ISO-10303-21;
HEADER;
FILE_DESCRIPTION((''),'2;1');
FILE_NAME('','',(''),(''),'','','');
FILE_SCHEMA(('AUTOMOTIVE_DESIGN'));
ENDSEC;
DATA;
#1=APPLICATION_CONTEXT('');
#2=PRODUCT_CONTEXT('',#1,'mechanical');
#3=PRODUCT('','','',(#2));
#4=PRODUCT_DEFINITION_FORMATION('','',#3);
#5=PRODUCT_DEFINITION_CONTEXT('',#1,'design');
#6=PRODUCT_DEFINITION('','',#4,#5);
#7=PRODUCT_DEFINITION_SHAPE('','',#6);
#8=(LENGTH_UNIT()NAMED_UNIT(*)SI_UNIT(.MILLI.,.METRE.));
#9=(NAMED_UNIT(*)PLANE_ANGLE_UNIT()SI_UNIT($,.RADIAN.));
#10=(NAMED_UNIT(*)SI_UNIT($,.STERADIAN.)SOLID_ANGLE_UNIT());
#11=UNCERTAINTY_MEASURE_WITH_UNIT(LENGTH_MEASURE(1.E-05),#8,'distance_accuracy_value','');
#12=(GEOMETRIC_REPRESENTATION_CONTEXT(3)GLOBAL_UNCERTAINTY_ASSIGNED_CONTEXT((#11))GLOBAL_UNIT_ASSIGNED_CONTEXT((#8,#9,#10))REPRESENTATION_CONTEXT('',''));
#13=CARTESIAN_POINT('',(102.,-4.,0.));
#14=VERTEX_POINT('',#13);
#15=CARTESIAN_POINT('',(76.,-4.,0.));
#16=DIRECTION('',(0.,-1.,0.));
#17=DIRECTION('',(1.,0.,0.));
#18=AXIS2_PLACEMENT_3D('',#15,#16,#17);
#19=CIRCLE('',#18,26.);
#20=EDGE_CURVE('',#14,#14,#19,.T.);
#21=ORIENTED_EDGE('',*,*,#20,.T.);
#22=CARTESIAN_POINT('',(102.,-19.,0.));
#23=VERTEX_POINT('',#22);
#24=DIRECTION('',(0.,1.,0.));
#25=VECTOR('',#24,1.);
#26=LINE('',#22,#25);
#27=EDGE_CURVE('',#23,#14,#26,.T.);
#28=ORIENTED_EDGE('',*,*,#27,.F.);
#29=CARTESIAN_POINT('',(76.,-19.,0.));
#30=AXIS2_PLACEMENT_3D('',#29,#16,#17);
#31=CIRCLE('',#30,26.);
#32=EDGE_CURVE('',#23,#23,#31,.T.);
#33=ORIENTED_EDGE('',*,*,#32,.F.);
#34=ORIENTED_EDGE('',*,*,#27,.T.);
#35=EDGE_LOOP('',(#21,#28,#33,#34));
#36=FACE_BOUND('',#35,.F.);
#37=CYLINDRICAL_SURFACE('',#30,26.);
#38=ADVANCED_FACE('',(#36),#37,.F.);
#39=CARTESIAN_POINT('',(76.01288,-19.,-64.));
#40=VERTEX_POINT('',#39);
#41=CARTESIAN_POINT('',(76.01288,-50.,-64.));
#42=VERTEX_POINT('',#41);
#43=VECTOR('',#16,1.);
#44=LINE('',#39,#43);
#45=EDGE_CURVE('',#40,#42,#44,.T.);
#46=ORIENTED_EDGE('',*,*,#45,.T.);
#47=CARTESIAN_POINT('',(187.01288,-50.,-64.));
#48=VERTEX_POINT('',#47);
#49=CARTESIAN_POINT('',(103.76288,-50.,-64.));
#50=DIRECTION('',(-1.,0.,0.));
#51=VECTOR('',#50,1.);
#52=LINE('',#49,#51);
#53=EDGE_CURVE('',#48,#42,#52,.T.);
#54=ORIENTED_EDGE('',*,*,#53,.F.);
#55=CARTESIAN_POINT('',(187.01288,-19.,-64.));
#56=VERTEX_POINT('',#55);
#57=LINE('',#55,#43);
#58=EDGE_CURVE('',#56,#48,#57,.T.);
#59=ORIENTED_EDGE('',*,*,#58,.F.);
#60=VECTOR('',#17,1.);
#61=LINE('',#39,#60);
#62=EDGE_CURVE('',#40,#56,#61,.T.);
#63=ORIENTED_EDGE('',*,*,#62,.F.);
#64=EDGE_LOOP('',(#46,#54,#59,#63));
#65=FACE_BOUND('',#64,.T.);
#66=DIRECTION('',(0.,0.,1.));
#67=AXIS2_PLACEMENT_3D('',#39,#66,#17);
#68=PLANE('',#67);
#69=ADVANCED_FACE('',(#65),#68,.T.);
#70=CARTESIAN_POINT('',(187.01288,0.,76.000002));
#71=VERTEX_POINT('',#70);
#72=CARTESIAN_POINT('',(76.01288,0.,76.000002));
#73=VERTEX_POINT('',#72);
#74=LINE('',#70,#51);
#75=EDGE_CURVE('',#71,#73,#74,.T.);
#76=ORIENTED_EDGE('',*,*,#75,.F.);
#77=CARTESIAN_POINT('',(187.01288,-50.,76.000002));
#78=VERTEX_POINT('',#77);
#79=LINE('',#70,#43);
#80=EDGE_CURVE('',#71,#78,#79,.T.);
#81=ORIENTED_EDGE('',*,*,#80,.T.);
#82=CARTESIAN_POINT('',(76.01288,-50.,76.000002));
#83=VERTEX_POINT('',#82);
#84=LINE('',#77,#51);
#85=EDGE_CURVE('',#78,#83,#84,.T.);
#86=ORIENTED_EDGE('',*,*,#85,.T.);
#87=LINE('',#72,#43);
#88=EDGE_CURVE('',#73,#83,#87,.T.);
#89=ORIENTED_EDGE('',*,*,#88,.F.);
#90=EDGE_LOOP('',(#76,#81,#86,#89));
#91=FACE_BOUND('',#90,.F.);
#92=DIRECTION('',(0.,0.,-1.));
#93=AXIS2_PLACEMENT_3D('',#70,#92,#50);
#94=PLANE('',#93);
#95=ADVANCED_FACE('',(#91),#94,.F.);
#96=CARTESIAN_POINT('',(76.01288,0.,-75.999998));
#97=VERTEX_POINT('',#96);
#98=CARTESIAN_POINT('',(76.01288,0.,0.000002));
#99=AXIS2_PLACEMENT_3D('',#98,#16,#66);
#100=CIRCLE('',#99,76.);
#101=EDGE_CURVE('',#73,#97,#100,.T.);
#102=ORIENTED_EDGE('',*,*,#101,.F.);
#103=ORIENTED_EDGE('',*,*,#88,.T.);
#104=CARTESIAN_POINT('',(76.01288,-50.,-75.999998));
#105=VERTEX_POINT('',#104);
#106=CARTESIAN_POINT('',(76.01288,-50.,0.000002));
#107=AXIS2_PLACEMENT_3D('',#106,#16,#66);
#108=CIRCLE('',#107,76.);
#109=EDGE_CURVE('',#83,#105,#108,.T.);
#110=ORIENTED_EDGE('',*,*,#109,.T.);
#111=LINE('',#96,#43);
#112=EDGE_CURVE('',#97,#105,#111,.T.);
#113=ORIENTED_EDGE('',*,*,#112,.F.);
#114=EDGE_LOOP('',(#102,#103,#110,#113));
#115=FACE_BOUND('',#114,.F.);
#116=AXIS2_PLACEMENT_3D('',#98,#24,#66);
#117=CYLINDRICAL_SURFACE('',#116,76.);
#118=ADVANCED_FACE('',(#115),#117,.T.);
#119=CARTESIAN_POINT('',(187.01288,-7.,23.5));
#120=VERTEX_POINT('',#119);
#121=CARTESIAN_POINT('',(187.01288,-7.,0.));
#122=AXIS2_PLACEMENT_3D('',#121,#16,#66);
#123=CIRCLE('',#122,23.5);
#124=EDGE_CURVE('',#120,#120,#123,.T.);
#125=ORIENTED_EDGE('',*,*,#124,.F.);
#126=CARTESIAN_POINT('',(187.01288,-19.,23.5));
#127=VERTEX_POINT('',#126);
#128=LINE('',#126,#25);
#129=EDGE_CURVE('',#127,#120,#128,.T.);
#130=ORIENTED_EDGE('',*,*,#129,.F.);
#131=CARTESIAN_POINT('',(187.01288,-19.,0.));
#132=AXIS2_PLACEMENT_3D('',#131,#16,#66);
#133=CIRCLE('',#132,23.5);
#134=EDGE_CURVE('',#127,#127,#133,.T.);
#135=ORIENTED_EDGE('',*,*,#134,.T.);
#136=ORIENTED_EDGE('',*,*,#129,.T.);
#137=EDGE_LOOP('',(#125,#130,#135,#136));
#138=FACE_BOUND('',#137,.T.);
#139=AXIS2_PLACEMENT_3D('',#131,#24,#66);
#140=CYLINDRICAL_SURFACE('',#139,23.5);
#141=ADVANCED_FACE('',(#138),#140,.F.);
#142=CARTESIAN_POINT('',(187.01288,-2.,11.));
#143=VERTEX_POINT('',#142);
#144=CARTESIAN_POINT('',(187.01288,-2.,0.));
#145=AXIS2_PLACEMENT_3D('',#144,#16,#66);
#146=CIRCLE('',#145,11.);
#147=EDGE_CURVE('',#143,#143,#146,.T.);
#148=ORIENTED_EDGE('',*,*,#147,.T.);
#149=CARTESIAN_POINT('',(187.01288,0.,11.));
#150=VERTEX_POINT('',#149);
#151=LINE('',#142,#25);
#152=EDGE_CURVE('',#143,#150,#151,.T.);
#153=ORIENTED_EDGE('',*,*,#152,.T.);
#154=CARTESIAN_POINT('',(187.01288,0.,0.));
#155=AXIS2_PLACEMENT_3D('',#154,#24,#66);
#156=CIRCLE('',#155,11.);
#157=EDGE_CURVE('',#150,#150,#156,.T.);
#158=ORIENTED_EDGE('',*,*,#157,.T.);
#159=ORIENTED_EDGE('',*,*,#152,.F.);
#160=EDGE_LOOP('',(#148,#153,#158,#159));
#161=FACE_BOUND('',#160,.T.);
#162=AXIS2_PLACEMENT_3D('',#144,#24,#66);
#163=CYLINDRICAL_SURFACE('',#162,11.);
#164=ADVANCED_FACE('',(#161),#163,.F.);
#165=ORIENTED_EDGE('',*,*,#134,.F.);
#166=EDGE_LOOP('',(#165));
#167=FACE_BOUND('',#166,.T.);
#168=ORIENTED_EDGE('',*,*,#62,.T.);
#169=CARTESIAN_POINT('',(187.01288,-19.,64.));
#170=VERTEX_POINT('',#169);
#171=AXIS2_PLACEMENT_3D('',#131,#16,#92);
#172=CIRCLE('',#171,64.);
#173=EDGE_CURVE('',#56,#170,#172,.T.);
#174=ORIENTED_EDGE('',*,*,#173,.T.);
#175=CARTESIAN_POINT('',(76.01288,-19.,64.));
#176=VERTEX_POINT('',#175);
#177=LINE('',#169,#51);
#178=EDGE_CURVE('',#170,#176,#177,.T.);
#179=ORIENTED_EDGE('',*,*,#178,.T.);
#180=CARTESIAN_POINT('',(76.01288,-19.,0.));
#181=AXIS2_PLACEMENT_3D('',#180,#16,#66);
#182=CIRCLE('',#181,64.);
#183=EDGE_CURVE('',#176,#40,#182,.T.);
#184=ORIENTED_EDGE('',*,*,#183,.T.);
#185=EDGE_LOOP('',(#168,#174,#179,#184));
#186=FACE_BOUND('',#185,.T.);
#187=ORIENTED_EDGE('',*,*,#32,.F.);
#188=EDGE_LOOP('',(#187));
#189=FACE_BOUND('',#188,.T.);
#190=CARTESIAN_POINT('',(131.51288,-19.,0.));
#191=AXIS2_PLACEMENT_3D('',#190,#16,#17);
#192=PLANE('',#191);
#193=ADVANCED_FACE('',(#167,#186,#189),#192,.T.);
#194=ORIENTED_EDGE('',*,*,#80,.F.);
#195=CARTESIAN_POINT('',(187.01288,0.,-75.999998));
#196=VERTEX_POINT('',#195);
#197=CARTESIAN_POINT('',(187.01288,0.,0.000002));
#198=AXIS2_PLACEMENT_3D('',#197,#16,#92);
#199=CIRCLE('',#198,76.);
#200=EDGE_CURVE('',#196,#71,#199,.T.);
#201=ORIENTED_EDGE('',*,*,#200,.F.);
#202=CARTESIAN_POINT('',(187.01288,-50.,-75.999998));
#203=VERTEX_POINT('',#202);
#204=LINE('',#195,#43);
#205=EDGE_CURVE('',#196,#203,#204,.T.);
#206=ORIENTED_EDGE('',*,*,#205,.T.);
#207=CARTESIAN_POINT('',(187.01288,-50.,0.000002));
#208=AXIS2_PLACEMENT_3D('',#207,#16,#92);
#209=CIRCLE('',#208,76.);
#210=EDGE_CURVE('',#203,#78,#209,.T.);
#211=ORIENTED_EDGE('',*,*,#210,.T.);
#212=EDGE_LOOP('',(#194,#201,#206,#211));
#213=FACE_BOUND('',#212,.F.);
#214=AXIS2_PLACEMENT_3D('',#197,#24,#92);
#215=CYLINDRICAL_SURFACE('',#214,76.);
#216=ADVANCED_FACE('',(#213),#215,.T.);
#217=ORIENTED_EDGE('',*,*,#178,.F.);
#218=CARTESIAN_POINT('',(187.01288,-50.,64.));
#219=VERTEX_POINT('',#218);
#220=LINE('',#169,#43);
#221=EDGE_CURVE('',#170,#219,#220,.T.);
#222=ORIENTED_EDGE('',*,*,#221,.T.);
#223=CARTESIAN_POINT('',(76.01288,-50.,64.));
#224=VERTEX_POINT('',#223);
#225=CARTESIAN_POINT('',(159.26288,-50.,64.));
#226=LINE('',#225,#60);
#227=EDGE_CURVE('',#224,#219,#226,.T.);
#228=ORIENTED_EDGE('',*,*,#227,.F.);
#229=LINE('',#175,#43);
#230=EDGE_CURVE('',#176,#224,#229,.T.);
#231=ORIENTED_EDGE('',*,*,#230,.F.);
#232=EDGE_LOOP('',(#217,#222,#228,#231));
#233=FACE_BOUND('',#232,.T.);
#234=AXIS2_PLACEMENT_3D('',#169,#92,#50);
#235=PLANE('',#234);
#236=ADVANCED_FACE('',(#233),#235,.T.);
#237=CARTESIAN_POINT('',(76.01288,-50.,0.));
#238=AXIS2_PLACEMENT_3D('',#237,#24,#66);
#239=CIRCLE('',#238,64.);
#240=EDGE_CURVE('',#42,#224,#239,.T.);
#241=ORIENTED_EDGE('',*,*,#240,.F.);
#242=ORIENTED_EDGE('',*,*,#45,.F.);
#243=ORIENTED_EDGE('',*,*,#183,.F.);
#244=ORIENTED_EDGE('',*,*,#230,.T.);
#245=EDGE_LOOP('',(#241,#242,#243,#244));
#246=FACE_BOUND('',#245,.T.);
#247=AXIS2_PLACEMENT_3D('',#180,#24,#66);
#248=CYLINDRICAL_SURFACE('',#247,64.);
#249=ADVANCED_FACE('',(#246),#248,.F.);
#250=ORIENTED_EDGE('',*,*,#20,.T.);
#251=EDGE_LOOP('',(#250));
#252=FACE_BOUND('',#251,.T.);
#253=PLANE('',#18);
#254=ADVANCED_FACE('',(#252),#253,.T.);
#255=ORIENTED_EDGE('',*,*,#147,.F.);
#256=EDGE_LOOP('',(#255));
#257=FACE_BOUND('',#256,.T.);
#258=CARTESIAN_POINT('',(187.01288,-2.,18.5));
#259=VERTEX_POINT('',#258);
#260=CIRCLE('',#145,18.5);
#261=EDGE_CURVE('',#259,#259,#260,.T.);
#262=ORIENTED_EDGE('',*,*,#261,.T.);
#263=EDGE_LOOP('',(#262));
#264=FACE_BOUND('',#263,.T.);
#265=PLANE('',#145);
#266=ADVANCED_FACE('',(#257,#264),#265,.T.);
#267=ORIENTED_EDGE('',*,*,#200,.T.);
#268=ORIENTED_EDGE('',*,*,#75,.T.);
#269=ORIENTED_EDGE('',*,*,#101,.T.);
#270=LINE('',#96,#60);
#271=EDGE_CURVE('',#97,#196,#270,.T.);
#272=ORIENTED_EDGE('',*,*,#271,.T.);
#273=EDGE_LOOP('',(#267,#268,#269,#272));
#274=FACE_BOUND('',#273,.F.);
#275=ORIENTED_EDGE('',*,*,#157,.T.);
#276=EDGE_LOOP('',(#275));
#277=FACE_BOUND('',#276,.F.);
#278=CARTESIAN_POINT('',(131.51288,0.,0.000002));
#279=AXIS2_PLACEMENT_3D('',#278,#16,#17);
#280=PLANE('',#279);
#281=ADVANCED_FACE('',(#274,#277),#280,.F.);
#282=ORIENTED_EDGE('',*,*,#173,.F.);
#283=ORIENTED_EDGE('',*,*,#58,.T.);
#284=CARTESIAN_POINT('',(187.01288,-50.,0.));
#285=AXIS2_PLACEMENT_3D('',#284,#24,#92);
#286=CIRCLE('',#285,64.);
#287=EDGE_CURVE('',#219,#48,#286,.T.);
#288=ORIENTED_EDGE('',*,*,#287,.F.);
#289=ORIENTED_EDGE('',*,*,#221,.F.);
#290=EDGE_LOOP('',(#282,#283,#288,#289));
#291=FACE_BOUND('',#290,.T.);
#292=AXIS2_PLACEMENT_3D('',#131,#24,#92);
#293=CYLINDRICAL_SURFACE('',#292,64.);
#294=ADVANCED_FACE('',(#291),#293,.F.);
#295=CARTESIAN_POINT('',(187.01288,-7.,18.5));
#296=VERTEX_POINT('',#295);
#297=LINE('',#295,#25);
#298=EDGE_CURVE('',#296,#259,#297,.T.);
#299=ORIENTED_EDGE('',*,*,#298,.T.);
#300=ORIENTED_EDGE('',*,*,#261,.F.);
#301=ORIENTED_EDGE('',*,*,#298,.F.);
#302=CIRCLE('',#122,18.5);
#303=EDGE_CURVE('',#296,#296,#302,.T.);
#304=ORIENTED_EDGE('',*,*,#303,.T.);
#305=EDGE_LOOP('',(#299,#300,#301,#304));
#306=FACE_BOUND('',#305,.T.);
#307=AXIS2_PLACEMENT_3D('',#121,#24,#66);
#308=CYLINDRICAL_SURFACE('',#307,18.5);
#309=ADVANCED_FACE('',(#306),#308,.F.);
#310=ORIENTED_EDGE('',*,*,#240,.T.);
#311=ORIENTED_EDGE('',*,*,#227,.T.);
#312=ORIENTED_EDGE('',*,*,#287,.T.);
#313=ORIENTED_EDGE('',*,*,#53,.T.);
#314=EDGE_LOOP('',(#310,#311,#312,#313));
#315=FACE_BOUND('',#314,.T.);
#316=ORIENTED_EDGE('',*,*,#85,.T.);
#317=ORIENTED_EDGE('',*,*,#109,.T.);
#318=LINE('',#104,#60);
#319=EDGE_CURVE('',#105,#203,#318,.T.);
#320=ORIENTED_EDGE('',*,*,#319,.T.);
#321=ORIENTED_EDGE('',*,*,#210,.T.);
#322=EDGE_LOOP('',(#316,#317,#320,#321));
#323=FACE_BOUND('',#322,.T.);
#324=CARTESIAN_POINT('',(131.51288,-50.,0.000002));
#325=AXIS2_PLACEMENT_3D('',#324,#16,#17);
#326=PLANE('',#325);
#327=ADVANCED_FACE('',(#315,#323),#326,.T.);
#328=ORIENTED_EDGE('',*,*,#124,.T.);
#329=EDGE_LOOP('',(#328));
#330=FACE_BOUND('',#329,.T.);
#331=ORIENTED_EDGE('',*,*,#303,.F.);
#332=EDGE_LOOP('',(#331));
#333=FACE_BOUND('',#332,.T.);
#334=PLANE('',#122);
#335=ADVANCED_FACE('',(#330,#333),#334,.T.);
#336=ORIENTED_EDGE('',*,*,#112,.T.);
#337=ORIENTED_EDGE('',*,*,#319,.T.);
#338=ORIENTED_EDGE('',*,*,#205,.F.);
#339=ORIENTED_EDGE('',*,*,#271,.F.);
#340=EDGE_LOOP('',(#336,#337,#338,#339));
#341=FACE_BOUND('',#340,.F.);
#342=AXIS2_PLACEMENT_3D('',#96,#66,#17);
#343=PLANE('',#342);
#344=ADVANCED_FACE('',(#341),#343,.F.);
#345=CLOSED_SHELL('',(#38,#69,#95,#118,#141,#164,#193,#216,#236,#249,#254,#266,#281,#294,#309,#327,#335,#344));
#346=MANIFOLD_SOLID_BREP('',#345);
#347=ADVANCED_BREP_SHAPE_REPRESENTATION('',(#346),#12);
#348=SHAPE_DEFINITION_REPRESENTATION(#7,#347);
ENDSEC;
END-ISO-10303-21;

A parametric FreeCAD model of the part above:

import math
import FreeCAD as App
import Part
import Sketcher
Q = App.Units.Quantity

doc = App.newDocument("Part")
body = doc.addObject("PartDesign::Body", "Body")

# Sketch on XZ plane
sketch1 = doc.addObject("Sketcher::SketchObject", "Sketch")
body.addObject(sketch1)
sketch1.AttachmentSupport = (doc.XZ_Plane, [""])
sketch1.MapMode = "FlatFace"
sketch1.addGeometry([
    Part.LineSegment(App.Vector(187, 76, 0), App.Vector(76, 76, 0)),
    Part.ArcOfCircle(Part.Circle(App.Vector(76, 0, 0), App.Vector(0, 0, 1), 76), math.radians(90), math.radians(270)),
    Part.LineSegment(App.Vector(76, -76, 0), App.Vector(187, -76, 0)),
    Part.ArcOfCircle(Part.Circle(App.Vector(187, 0, 0), App.Vector(0, 0, 1), 76), math.radians(-90), math.radians(90)),
], False)
sketch1.addConstraint([
    Sketcher.Constraint("Tangent", 0, 2, 1, 1),
    Sketcher.Constraint("Tangent", 1, 2, 2, 1),
    Sketcher.Constraint("Tangent", 2, 2, 3, 1),
    Sketcher.Constraint("Tangent", 3, 2, 0, 1),
    Sketcher.Constraint("Horizontal", 0),
    Sketcher.Constraint("Horizontal", 2),
    Sketcher.Constraint("Radius", 1, Q("76 mm")),
    Sketcher.Constraint("DistanceX", 0, 2, 0, 1, Q("111 mm")),
    Sketcher.Constraint("DistanceY", -1, 1, 0, 2, Q("76.000002 mm")),
    Sketcher.Constraint("DistanceX", -1, 1, 1, 3, Q("76.01288 mm")),
])
pad1 = doc.addObject("PartDesign::Pad", "Pad")
body.addObject(pad1)
pad1.Profile = sketch1
pad1.Length = 50

# Sketch on XZ plane
sketch2 = doc.addObject("Sketcher::SketchObject", "Sketch001")
body.addObject(sketch2)
sketch2.AttachmentSupport = (doc.XZ_Plane, [""])
sketch2.MapMode = "FlatFace"
sketch2.AttachmentOffset = App.Placement(App.Vector(0, 0, 19), App.Rotation())
sketch2.addGeometry([
    Part.LineSegment(App.Vector(187, 64, 0), App.Vector(76, 64, 0)),
    Part.ArcOfCircle(Part.Circle(App.Vector(76, 0, 0), App.Vector(0, 0, 1), 64), math.radians(90), math.radians(270)),
    Part.LineSegment(App.Vector(76, -64, 0), App.Vector(187, -64, 0)),
    Part.ArcOfCircle(Part.Circle(App.Vector(187, 0, 0), App.Vector(0, 0, 1), 64), math.radians(-90), math.radians(90)),
], False)
sketch2.addConstraint([
    Sketcher.Constraint("Tangent", 0, 2, 1, 1),
    Sketcher.Constraint("Tangent", 1, 2, 2, 1),
    Sketcher.Constraint("Tangent", 2, 2, 3, 1),
    Sketcher.Constraint("Tangent", 3, 2, 0, 1),
    Sketcher.Constraint("Horizontal", 0),
    Sketcher.Constraint("Horizontal", 2),
    Sketcher.Constraint("PointOnObject", 1, 3, -1),
    Sketcher.Constraint("Radius", 1, Q("64 mm")),
    Sketcher.Constraint("DistanceX", 0, 2, 0, 1, Q("111 mm")),
    Sketcher.Constraint("DistanceX", -1, 1, 1, 3, Q("76.01288 mm")),
])
pocket1 = doc.addObject("PartDesign::Pocket", "Pocket")
body.addObject(pocket1)
pocket1.Profile = sketch2
pocket1.Length = 200
pocket1.Reversed = True

# Sketch on XZ plane
sketch3 = doc.addObject("Sketcher::SketchObject", "Sketch002")
body.addObject(sketch3)
sketch3.AttachmentSupport = (doc.XZ_Plane, [""])
sketch3.MapMode = "FlatFace"
sketch3.AttachmentOffset = App.Placement(App.Vector(0, 0, 19), App.Rotation())
sketch3.addGeometry(Part.Circle(App.Vector(76, 0, 0), App.Vector(0, 0, 1), 26), False)
sketch3.addConstraint([
    Sketcher.Constraint("PointOnObject", 0, 3, -1),
    Sketcher.Constraint("Diameter", 0, Q("52 mm")),
    Sketcher.Constraint("DistanceX", -1, 1, 0, 3, Q("76 mm")),
])
pocket2 = doc.addObject("PartDesign::Pocket", "Pocket001")
body.addObject(pocket2)
pocket2.Profile = sketch3
pocket2.Length = 15

# Sketch on YZ plane
sketch4 = doc.addObject("Sketcher::SketchObject", "Sketch003")
body.addObject(sketch4)
sketch4.AttachmentSupport = (doc.YZ_Plane, [""])
sketch4.MapMode = "FlatFace"
sketch4.AttachmentOffset = App.Placement(App.Vector(0, 0, 187.01288), App.Rotation())
sketch4.addGeometry([
    Part.LineSegment(App.Vector(-2, 11, 0), App.Vector(9, 11, 0)),  # 0
    Part.LineSegment(App.Vector(9, 11, 0), App.Vector(9, 0, 0)),  # 1
    Part.LineSegment(App.Vector(9, 0, 0), App.Vector(-19, 0, 0)),  # 2
    Part.LineSegment(App.Vector(-19, 0, 0), App.Vector(-19, 24, 0)),  # 3
    Part.LineSegment(App.Vector(-19, 24, 0), App.Vector(-7, 24, 0)),  # 4
    Part.LineSegment(App.Vector(-7, 24, 0), App.Vector(-7, 18, 0)),  # 5
    Part.LineSegment(App.Vector(-7, 18, 0), App.Vector(-2, 18, 0)),  # 6
    Part.LineSegment(App.Vector(-2, 18, 0), App.Vector(-2, 11, 0)),  # 7
], False)
sketch4.addConstraint([
    Sketcher.Constraint("Coincident", 0, 2, 1, 1),
    Sketcher.Constraint("Coincident", 1, 2, 2, 1),
    Sketcher.Constraint("Coincident", 2, 2, 3, 1),
    Sketcher.Constraint("Coincident", 3, 2, 4, 1),
    Sketcher.Constraint("Coincident", 4, 2, 5, 1),
    Sketcher.Constraint("Coincident", 5, 2, 6, 1),
    Sketcher.Constraint("Coincident", 6, 2, 7, 1),
    Sketcher.Constraint("Coincident", 7, 2, 0, 1),
    Sketcher.Constraint("Horizontal", 0),
    Sketcher.Constraint("Vertical", 1),
    Sketcher.Constraint("Horizontal", 2),
    Sketcher.Constraint("Vertical", 3),
    Sketcher.Constraint("Horizontal", 4),
    Sketcher.Constraint("Vertical", 5),
    Sketcher.Constraint("Horizontal", 6),
    Sketcher.Constraint("Vertical", 7),
    Sketcher.Constraint("PointOnObject", 1, 2, -1),
    Sketcher.Constraint("Equal", 6, 5),
    Sketcher.Constraint("DistanceX", 4, 1, 4, 2, Q("12 mm")),
    Sketcher.Constraint("DistanceX", 6, 1, 6, 2, Q("5 mm")),
    Sketcher.Constraint("DistanceY", 1, 2, 1, 1, Q("11 mm")),
    Sketcher.Constraint("DistanceY", 3, 1, 3, 2, Q("23.5 mm")),
    Sketcher.Constraint("DistanceX", 2, 2, -1, 1, Q("19 mm")),
    Sketcher.Constraint("DistanceX", 0, 1, 0, 2, Q("10.944635 mm")),
])
groove = doc.addObject("PartDesign::Groove", "Groove")
body.addObject(groove)
groove.Profile = sketch4
groove.ReferenceAxis = (sketch4, ["H_Axis"])
groove.Angle = 360

doc.recompute()
